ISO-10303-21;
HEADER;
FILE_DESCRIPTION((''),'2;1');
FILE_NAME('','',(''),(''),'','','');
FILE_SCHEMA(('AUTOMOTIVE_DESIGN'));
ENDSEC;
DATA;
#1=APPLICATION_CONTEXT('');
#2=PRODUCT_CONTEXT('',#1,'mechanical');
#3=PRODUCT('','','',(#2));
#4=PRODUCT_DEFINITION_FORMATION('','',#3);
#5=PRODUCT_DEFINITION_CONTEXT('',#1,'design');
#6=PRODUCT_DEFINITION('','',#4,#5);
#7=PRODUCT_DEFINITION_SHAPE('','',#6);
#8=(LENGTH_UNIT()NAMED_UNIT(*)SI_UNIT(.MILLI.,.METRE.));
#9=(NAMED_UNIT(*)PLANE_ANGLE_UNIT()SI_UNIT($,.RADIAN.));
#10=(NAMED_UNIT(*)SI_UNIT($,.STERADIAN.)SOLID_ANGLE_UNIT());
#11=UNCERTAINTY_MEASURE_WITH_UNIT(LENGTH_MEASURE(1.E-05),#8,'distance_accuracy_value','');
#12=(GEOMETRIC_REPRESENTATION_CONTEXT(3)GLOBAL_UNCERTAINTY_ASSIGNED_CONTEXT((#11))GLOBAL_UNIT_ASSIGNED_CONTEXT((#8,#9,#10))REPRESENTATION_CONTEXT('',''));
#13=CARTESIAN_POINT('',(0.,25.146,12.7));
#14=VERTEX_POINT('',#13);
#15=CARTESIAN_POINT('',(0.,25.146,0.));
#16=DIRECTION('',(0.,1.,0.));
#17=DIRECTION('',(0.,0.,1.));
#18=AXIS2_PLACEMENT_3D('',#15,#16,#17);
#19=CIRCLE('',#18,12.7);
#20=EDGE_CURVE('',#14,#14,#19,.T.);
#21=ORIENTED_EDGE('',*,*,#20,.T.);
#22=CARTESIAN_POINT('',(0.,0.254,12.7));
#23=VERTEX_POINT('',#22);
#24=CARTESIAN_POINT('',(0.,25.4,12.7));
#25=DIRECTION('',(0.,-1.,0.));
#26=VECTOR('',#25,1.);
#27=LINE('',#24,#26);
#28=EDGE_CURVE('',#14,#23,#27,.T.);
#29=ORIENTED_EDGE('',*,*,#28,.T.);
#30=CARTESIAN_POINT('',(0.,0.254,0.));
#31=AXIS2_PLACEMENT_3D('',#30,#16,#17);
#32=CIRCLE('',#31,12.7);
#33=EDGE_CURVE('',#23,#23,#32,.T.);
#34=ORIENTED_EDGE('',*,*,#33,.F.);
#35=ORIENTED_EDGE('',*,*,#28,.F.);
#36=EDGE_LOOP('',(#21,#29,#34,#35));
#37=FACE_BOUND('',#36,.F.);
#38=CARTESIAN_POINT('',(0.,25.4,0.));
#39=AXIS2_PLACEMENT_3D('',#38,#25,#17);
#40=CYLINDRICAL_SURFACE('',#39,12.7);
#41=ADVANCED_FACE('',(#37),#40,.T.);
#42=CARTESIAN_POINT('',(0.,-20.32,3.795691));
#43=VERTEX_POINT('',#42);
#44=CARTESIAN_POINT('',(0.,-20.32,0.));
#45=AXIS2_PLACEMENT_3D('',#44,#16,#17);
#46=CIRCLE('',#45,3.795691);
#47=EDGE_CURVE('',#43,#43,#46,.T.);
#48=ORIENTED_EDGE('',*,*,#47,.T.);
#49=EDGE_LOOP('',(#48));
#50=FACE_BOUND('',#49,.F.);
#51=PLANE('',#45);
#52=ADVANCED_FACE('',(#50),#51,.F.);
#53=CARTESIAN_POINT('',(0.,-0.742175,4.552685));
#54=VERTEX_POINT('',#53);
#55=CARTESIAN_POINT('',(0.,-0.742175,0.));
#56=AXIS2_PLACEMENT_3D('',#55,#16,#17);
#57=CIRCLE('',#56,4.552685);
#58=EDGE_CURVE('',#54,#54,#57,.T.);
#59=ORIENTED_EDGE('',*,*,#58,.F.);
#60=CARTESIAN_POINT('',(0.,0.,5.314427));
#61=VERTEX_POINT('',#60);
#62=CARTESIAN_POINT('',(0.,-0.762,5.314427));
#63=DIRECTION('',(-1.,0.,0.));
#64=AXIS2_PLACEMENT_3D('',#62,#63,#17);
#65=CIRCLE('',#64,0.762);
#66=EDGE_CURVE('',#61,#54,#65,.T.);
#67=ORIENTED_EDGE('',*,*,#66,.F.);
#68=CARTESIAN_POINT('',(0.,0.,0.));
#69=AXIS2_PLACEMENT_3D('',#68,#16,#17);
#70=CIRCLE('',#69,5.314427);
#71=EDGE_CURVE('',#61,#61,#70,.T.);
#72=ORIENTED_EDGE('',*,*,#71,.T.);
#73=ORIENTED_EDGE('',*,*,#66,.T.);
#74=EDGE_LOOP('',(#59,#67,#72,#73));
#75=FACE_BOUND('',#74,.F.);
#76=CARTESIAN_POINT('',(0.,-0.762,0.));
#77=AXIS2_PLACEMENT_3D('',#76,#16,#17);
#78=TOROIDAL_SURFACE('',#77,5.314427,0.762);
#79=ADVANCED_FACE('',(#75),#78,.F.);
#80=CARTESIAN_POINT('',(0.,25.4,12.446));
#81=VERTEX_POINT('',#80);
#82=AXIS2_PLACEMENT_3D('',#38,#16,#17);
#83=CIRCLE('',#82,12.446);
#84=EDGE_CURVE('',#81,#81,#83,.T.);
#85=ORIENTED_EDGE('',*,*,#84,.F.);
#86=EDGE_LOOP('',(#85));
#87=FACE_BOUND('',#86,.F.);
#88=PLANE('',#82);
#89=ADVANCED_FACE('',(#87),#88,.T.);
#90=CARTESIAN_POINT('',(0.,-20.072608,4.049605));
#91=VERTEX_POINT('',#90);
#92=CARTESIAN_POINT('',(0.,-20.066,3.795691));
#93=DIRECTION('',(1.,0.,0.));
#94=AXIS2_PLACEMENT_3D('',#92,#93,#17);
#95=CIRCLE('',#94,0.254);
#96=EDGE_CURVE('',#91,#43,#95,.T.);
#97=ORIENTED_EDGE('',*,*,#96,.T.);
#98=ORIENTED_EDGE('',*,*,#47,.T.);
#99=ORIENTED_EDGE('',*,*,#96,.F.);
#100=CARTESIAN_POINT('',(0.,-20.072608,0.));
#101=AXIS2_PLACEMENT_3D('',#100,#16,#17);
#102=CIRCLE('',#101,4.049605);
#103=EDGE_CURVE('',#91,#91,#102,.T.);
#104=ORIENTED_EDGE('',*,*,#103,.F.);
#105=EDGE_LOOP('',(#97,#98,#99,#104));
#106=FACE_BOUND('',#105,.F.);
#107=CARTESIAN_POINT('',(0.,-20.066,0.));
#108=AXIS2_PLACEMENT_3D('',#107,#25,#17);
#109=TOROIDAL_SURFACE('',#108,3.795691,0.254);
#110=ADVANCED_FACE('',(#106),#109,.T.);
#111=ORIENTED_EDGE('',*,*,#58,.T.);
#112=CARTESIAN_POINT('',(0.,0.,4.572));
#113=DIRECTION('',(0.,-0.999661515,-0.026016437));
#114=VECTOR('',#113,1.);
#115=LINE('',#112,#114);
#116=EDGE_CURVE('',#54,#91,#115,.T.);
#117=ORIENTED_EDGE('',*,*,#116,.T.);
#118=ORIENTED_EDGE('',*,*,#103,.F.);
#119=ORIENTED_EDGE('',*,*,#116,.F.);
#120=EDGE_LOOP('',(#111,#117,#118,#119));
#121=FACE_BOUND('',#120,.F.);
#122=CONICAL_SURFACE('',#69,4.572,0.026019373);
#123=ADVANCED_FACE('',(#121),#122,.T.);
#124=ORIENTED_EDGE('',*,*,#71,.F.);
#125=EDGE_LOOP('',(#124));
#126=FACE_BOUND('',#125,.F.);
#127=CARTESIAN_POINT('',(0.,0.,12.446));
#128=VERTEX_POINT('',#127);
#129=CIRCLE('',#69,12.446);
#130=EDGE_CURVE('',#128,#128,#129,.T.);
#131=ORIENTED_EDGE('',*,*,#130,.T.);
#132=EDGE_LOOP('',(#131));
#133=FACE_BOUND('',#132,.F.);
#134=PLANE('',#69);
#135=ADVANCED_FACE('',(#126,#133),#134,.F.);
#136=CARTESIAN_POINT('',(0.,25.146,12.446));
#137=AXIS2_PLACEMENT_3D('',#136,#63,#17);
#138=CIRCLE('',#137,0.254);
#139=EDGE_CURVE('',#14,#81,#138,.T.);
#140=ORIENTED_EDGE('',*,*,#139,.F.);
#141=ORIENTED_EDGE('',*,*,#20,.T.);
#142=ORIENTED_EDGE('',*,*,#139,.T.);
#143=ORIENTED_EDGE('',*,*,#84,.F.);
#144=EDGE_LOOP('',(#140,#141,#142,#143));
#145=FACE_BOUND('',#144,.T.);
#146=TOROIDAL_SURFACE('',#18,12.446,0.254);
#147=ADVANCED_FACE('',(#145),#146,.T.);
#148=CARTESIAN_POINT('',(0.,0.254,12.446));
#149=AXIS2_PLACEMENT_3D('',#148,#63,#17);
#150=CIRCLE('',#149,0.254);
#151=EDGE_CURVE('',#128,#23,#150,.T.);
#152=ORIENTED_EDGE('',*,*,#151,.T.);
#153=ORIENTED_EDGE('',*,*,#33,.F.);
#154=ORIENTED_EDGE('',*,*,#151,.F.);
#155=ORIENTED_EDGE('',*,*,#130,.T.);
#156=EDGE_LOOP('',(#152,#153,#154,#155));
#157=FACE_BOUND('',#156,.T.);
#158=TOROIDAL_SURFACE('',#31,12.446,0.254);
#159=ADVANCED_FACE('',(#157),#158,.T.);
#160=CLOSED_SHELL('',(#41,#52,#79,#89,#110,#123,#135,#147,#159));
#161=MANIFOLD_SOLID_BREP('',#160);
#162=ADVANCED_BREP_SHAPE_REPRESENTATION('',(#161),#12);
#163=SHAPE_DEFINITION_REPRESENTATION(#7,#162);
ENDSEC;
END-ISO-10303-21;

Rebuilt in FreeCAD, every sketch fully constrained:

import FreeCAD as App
import Part
import Sketcher
Q = App.Units.Quantity


def edges_at(feature, points):
    """Names of the edges that pass closest to the given points."""
    edges = feature.Shape.Edges
    near = lambda p: min(range(len(edges)), key=lambda i: edges[i].distToShape(Part.Vertex(*p))[0])
    return sorted({f"Edge{near(p) + 1}" for p in points})


def add_polygon(sketch, points):
    """Adds a closed chain of lines whose ends are joined by coincident constraints."""
    first, n = sketch.GeometryCount, len(points)
    for a, b in zip(points, points[1:] + points[:1]):
        sketch.addGeometry(Part.LineSegment(App.Vector(*a, 0), App.Vector(*b, 0)), False)
    for i in range(n):
        sketch.addConstraint(Sketcher.Constraint("Coincident", first + i, 2, first + (i + 1) % n, 1))

doc = App.newDocument("Part")
params = doc.addObject("Spreadsheet::Sheet", "Params")
for row, (alias, value) in enumerate([
    ("sketch1_width", "1 in"),
    ("sketch1_width2", "1.8 in"),
    ("sketch1_height", "0.5 in"),
    ("sketch1_height2", "0.32 in"),
    ("revolution_angle", "360 deg"),
    ("fillet_radius", "0.03 in"),
    ("fillet2_radius", "0.01 in"),
], start=1):
    params.set(f"A{row}", alias)
    params.set(f"B{row}", "=" + value)
    params.setAlias(f"B{row}", alias)

body = doc.addObject("PartDesign::Body", "Body")

sketch1 = body.newObject("Sketcher::SketchObject", "Sketch")
sketch1.AttachmentSupport = (doc.getObject("YZ_Plane"), [""])
sketch1.MapMode = "FlatFace"
add_polygon(sketch1, [(-20.3, 0), (25.4, 0), (25.4, 12.7), (0, 12.7), (0, 4.6), (-20.3, 4)])
sketch1.addConstraint(Sketcher.Constraint("Horizontal", 0))
sketch1.addConstraint(Sketcher.Constraint("Vertical", 1))
sketch1.addConstraint(Sketcher.Constraint("Horizontal", 2))
sketch1.addConstraint(Sketcher.Constraint("Vertical", 3))
sketch1.addConstraint(Sketcher.Constraint("Vertical", 5))
sketch1.addConstraint(Sketcher.Constraint("PointOnObject", 0, 2, -1))
sketch1.addConstraint(Sketcher.Constraint("PointOnObject", 2, 2, -2))
sketch1.addConstraint(Sketcher.Constraint("DistanceX", 2, 2, 2, 1, Q("1 in")))
sketch1.addConstraint(Sketcher.Constraint("DistanceX", 0, 1, 0, 2, Q("1.8 in")))
sketch1.addConstraint(Sketcher.Constraint("DistanceY", 1, 1, 1, 2, Q("0.5 in")))
sketch1.addConstraint(Sketcher.Constraint("DistanceY", 3, 2, 3, 1, Q("0.32 in")))
sketch1.addConstraint(Sketcher.Constraint("Distance", 4, 20.32688))
sketch1.setExpression("Constraints[13]", "Params.sketch1_width")
sketch1.setExpression("Constraints[14]", "Params.sketch1_width2")
sketch1.setExpression("Constraints[15]", "Params.sketch1_height")
sketch1.setExpression("Constraints[16]", "Params.sketch1_height2")
revolution = body.newObject("PartDesign::Revolution", "Revolution")
revolution.Profile = sketch1
revolution.ReferenceAxis = (sketch1, ["H_Axis"])
revolution.setExpression("Angle", "Params.revolution_angle")
doc.recompute()

fillet = body.newObject("PartDesign::Fillet", "Fillet")
fillet.Base = (revolution, edges_at(revolution, [(0, 0, -4.572)]))
fillet.setExpression("Radius", "Params.fillet_radius")
doc.recompute()

fillet2 = body.newObject("PartDesign::Fillet", "Fillet001")
fillet2.Base = (fillet, edges_at(fillet, [(0, 0, -12.7), (0, 25.4, -12.7), (0, -20.32, -4.043)]))
fillet2.setExpression("Radius", "Params.fillet2_radius")

doc.recompute()
